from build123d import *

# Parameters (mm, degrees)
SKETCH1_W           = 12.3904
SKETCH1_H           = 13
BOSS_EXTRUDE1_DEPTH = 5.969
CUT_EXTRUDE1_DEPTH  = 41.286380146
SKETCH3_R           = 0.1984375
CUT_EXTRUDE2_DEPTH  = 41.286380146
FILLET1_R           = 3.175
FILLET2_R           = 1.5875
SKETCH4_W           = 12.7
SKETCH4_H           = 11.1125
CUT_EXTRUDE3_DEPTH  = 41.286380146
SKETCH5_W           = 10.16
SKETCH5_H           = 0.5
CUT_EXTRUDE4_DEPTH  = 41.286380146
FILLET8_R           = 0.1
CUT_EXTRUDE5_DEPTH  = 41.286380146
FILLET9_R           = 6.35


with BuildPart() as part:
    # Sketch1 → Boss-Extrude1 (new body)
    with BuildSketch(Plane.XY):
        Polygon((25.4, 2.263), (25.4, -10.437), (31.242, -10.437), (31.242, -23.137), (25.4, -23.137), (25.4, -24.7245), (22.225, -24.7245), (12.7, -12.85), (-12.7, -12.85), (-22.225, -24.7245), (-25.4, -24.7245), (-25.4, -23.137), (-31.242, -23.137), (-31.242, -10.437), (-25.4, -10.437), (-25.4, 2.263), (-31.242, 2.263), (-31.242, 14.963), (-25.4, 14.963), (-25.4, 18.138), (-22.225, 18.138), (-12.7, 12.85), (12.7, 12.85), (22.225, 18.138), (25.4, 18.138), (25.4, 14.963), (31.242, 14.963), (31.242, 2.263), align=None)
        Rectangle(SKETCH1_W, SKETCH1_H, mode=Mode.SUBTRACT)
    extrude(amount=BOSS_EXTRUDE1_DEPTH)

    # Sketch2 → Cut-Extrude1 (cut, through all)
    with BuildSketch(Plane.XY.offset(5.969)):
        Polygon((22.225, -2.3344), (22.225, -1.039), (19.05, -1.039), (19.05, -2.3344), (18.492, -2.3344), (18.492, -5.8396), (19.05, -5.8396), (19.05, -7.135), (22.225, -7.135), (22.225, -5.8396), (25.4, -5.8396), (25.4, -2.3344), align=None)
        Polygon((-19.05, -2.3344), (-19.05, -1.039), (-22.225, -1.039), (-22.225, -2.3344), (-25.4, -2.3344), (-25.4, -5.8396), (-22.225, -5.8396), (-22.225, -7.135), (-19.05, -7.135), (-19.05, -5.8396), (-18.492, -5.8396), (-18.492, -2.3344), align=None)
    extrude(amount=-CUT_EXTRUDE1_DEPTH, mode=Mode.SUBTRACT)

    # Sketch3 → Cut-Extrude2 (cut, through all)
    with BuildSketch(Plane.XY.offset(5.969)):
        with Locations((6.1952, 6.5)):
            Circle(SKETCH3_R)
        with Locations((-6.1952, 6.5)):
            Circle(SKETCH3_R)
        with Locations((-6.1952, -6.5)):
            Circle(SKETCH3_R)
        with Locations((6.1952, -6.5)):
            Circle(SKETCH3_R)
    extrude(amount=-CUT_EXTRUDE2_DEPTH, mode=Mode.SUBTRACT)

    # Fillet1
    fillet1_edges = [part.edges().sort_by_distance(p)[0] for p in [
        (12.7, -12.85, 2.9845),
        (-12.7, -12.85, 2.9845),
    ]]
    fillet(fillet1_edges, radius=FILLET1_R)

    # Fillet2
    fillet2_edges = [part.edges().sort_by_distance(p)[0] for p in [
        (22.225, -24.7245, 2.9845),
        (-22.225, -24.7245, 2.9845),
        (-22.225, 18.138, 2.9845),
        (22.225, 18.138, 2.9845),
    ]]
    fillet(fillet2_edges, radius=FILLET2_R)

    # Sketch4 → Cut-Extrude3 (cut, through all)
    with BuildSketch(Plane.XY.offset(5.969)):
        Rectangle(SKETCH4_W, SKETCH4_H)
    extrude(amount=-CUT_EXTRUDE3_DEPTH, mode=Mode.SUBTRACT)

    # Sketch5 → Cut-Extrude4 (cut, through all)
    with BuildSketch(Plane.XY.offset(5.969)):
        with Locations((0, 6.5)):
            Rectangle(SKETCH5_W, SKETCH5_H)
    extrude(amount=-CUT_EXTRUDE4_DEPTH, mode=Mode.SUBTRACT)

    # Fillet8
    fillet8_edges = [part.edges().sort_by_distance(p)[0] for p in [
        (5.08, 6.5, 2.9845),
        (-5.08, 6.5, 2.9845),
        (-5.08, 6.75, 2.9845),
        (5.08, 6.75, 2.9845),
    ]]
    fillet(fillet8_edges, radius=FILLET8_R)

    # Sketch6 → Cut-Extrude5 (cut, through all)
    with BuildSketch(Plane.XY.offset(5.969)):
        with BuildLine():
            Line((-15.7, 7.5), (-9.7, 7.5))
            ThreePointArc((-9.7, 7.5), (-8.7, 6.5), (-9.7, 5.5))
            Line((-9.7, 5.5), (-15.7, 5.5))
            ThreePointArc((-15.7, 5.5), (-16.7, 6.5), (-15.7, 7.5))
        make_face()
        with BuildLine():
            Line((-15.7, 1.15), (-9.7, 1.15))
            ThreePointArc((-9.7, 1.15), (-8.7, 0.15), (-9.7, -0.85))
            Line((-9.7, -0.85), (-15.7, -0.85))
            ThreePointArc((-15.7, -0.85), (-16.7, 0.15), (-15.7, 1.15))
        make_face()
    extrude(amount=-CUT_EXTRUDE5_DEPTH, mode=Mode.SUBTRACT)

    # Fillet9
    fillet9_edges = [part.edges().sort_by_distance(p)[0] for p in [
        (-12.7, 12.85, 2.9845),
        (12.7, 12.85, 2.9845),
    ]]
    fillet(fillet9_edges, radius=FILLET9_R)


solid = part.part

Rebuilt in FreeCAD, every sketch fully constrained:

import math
import FreeCAD as App
import Part
import Sketcher

V = App.Vector
Q = App.Units.Quantity


def edges_at(feature, points):
    """Names of the edges that pass closest to the given points."""
    edges = feature.Shape.Edges
    near = lambda p: min(range(len(edges)), key=lambda i: edges[i].distToShape(Part.Vertex(*p))[0])
    return sorted({f"Edge{near(p) + 1}" for p in points})


def add_polygon(sketch, points):
    """Adds a closed chain of lines whose ends are joined by coincident constraints."""
    first, n = sketch.GeometryCount, len(points)
    for a, b in zip(points, points[1:] + points[:1]):
        sketch.addGeometry(Part.LineSegment(App.Vector(*a, 0), App.Vector(*b, 0)), False)
    for i in range(n):
        sketch.addConstraint(Sketcher.Constraint("Coincident", first + i, 2, first + (i + 1) % n, 1))

doc = App.newDocument("Part")
body = doc.addObject("PartDesign::Body", "Body")

sketch1 = body.newObject("Sketcher::SketchObject", "Sketch")
sketch1.AttachmentSupport = (doc.getObject("XY_Plane"), [""])
sketch1.MapMode = "FlatFace"
add_polygon(sketch1, [(25.4, -10.4), (25.4, 2.3), (31.2, 2.3), (31.2, 15), (25.4, 15), (25.4, 18.1), (22.2, 18.1), (12.7, 12.8), (-12.7, 12.8), (-22.2, 18.1), (-25.4, 18.1), (-25.4, 15), (-31.2, 15), (-31.2, 2.3), (-25.4, 2.3), (-25.4, -10.4), (-31.2, -10.4), (-31.2, -23.1), (-25.4, -23.1), (-25.4, -24.7), (-22.2, -24.7), (-12.7, -12.8), (12.7, -12.8), (22.2, -24.7), (25.4, -24.7), (25.4, -23.1), (31.2, -23.1), (31.2, -10.4)])
add_polygon(sketch1, [(-6.2, -6.5), (-6.2, 6.5), (6.2, 6.5), (6.2, -6.5)])
sketch1.addConstraint([
    Sketcher.Constraint("Vertical", 0),
    Sketcher.Constraint("Horizontal", 1),
    Sketcher.Constraint("Vertical", 2),
    Sketcher.Constraint("Horizontal", 3),
    Sketcher.Constraint("Vertical", 4),
    Sketcher.Constraint("Horizontal", 5),
    Sketcher.Constraint("Horizontal", 7),
    Sketcher.Constraint("Horizontal", 9),
    Sketcher.Constraint("Vertical", 10),
    Sketcher.Constraint("Horizontal", 11),
    Sketcher.Constraint("Vertical", 12),
    Sketcher.Constraint("Horizontal", 13),
    Sketcher.Constraint("Vertical", 14),
    Sketcher.Constraint("Horizontal", 15),
    Sketcher.Constraint("Vertical", 16),
    Sketcher.Constraint("Horizontal", 17),
    Sketcher.Constraint("Vertical", 18),
    Sketcher.Constraint("Horizontal", 19),
    Sketcher.Constraint("Horizontal", 21),
    Sketcher.Constraint("Horizontal", 23),
    Sketcher.Constraint("Vertical", 24),
    Sketcher.Constraint("Horizontal", 25),
    Sketcher.Constraint("Vertical", 26),
    Sketcher.Constraint("Horizontal", 27),
    Sketcher.Constraint("Vertical", 28),
    Sketcher.Constraint("Horizontal", 29),
    Sketcher.Constraint("Vertical", 30),
    Sketcher.Constraint("Horizontal", 31),
    Sketcher.Constraint("Symmetric", 6, 2, 20, 2, -1, 1),
    Sketcher.Constraint("Symmetric", 28, 2, 30, 2, -1, 1),
    Sketcher.Constraint("Symmetric", 5, 2, 8, 2, -2),
    Sketcher.Constraint("Symmetric", 3, 2, 10, 2, -2),
    Sketcher.Constraint("Symmetric", 1, 2, 12, 2, -2),
    Sketcher.Constraint("Symmetric", 19, 2, 22, 2, -2),
    Sketcher.Constraint("Symmetric", 17, 2, 24, 2, -2),
    Sketcher.Constraint("Symmetric", 15, 2, 26, 2, -2),
    Sketcher.Constraint("Vertical", 0, 2, 3, 2),
    Sketcher.Constraint("Vertical", 10, 2, 13, 2),
    Sketcher.Constraint("Vertical", 12, 2, 15, 2),
    Sketcher.Constraint("Vertical", 14, 2, 17, 2),
    Sketcher.Constraint("Vertical", 8, 2, 19, 2),
    Sketcher.Constraint("Vertical", 7, 2, 20, 2),
    Sketcher.Constraint("Vertical", 6, 2, 21, 2),
    Sketcher.Constraint("Equal", 0, 2),
    Sketcher.Constraint("Equal", 23, 4),
    Sketcher.Constraint("Equal", 14, 16),
    Sketcher.Constraint("DistanceX", 7, 2, 7, 1, Q("1 in")),
    Sketcher.Constraint("DistanceY", 0, 1, 0, 2, Q("0.5 in")),
    Sketcher.Constraint("DistanceX", -1, 1, 0, 2, Q("1 in")),
    Sketcher.Constraint("DistanceX", 1, 1, 1, 2, Q("0.23 in")),
    Sketcher.Constraint("DistanceX", 5, 2, 5, 1, Q("0.125 in")),
    Sketcher.Constraint("DistanceY", 18, 2, 18, 1, Q("0.0625 in")),
    Sketcher.Constraint("DistanceY", 28, 2, 7, 2, Q("0.25 in")),
    Sketcher.Constraint("DistanceY", 20, 2, 14, 2, Q("0.095 in")),
    Sketcher.Constraint("DistanceX", 29, 1, 29, 2, 12.3904),
    Sketcher.Constraint("DistanceY", 28, 1, 28, 2, 13.0),
])
pad1 = body.newObject("PartDesign::Pad", "Pad")
pad1.Profile = sketch1
pad1.Length = Q("0.235 in")

sketch2 = body.newObject("Sketcher::SketchObject", "Sketch001")
sketch2.AttachmentSupport = (doc.getObject("XY_Plane"), [""])
sketch2.MapMode = "FlatFace"
sketch2.AttachmentOffset = App.Placement(V(0, 0, 0.235 * 25.4), App.Rotation())
add_polygon(sketch2, [(22.2, -2.3), (22.2, -1), (19.1, -1), (19.1, -2.3), (18.5, -2.3), (18.5, -5.8), (19.1, -5.8), (19.1, -7.1), (22.2, -7.1), (22.2, -5.8), (25.4, -5.8), (25.4, -2.3)])
add_polygon(sketch2, [(-19.1, -2.3), (-19.1, -1), (-22.2, -1), (-22.2, -2.3), (-25.4, -2.3), (-25.4, -5.8), (-22.2, -5.8), (-22.2, -7.1), (-19.1, -7.1), (-19.1, -5.8), (-18.5, -5.8), (-18.5, -2.3)])
sketch2.addConstraint([
    Sketcher.Constraint("Vertical", 0),
    Sketcher.Constraint("Horizontal", 1),
    Sketcher.Constraint("Vertical", 2),
    Sketcher.Constraint("Horizontal", 3),
    Sketcher.Constraint("Vertical", 4),
    Sketcher.Constraint("Horizontal", 5),
    Sketcher.Constraint("Vertical", 6),
    Sketcher.Constraint("Horizontal", 7),
    Sketcher.Constraint("Vertical", 8),
    Sketcher.Constraint("Horizontal", 9),
    Sketcher.Constraint("Vertical", 10),
    Sketcher.Constraint("Horizontal", 11),
    Sketcher.Constraint("Vertical", 12),
    Sketcher.Constraint("Horizontal", 13),
    Sketcher.Constraint("Vertical", 14),
    Sketcher.Constraint("Horizontal", 15),
    Sketcher.Constraint("Vertical", 16),
    Sketcher.Constraint("Horizontal", 17),
    Sketcher.Constraint("Vertical", 18),
    Sketcher.Constraint("Horizontal", 19),
    Sketcher.Constraint("Vertical", 20),
    Sketcher.Constraint("Horizontal", 21),
    Sketcher.Constraint("Vertical", 22),
    Sketcher.Constraint("Horizontal", 23),
    Sketcher.Constraint("Symmetric", 1, 2, 12, 2, -2),
    Sketcher.Constraint("Symmetric", 11, 2, 14, 2, -2),
    Sketcher.Constraint("Symmetric", 9, 2, 16, 2, -2),
    Sketcher.Constraint("Symmetric", 7, 2, 18, 2, -2),
    Sketcher.Constraint("Symmetric", 5, 2, 20, 2, -2),
    Sketcher.Constraint("Symmetric", 3, 2, 22, 2, -2),
    Sketcher.Constraint("Horizontal", 5, 2, 8, 2),
    Sketcher.Constraint("Horizontal", 3, 2, 10, 2),
    Sketcher.Constraint("Vertical", 2, 2, 5, 2),
    Sketcher.Constraint("Vertical", 0, 2, 7, 2),
    Sketcher.Constraint("Equal", 7, 9),
    Sketcher.Constraint("Equal", 2, 6),
    Sketcher.Constraint("DistanceX", -1, 1, 9, 2, Q("1 in")),
    Sketcher.Constraint("DistanceX", 12, 2, 1, 2, Q("1.5 in")),
    Sketcher.Constraint("DistanceY", 0, 1, 0, 2, Q("0.051 in")),
    Sketcher.Constraint("DistanceY", 4, 2, 4, 1, Q("0.138 in")),
    Sketcher.Constraint("DistanceX", 3, 2, 3, 1, 0.558),
    Sketcher.Constraint("DistanceY", 0, 2, -1, 1, 1.039),
])
pocket1 = body.newObject("PartDesign::Pocket", "Pocket")
pocket1.Profile = sketch2
pocket1.Type = "ThroughAll"

sketch3 = body.newObject("Sketcher::SketchObject", "Sketch002")
sketch3.AttachmentSupport = (doc.getObject("XY_Plane"), [""])
sketch3.MapMode = "FlatFace"
sketch3.AttachmentOffset = App.Placement(V(0, 0, 0.235 * 25.4), App.Rotation())
sketch3.addGeometry([
    Part.Circle(V(6.2, 6.5, 0), V(0, 0, 1), 0.2),
    Part.Circle(V(-6.2, 6.5, 0), V(0, 0, 1), 0.2),
    Part.Circle(V(-6.2, -6.5, 0), V(0, 0, 1), 0.2),
    Part.Circle(V(6.2, -6.5, 0), V(0, 0, 1), 0.2),
], False)
sketch3.addConstraint([
    Sketcher.Constraint("Equal", 0, 1),
    Sketcher.Constraint("Equal", 1, 2),
    Sketcher.Constraint("Equal", 2, 3),
    Sketcher.Constraint("Symmetric", 0, 3, 2, 3, -1, 1),
    Sketcher.Constraint("Symmetric", 1, 3, 3, 3, -1, 1),
    Sketcher.Constraint("Symmetric", 0, 3, 1, 3, -2),
    Sketcher.Constraint("Diameter", 0, Q("0.015625 in")),
    Sketcher.Constraint("DistanceX", -1, 1, 0, 3, 6.1952),
    Sketcher.Constraint("DistanceY", -1, 1, 0, 3, 6.5),
])
pocket2 = body.newObject("PartDesign::Pocket", "Pocket001")
pocket2.Profile = sketch3
pocket2.Type = "ThroughAll"
doc.recompute()

fillet = body.newObject("PartDesign::Fillet", "Fillet")
fillet.Base = (pocket2, edges_at(pocket2, [(12.7, -12.85, 2.985), (-12.7, -12.85, 2.985)]))
fillet.Radius = Q("0.125 in")
doc.recompute()

fillet2 = body.newObject("PartDesign::Fillet", "Fillet001")
fillet2.Base = (fillet, edges_at(fillet, [
    (22.225, -24.724, 2.985),
    (-22.225, -24.724, 2.985),
    (-22.225, 18.138, 2.985),
    (22.225, 18.138, 2.985),
]))
fillet2.Radius = Q("0.0625 in")

sketch4 = body.newObject("Sketcher::SketchObject", "Sketch003")
sketch4.AttachmentSupport = (doc.getObject("XY_Plane"), [""])
sketch4.MapMode = "FlatFace"
sketch4.AttachmentOffset = App.Placement(V(0, 0, 0.235 * 25.4), App.Rotation())
add_polygon(sketch4, [(-6, 6), (-6, -6), (6, -6), (6, 6)])
sketch4.addConstraint([
    Sketcher.Constraint("Vertical", 0),
    Sketcher.Constraint("Horizontal", 1),
    Sketcher.Constraint("Vertical", 2),
    Sketcher.Constraint("Horizontal", 3),
    Sketcher.Constraint("Symmetric", 0, 2, 2, 2, -1, 1),
    Sketcher.Constraint("DistanceX", 1, 1, 1, 2, Q("0.5 in")),
    Sketcher.Constraint("DistanceY", 0, 2, 0, 1, Q("0.4375 in")),
])
pocket3 = body.newObject("PartDesign::Pocket", "Pocket002")
pocket3.Profile = sketch4
pocket3.Type = "ThroughAll"

sketch5 = body.newObject("Sketcher::SketchObject", "Sketch004")
sketch5.AttachmentSupport = (doc.getObject("XY_Plane"), [""])
sketch5.MapMode = "FlatFace"
sketch5.AttachmentOffset = App.Placement(V(0, 0, 0.235 * 25.4), App.Rotation())
add_polygon(sketch5, [(-5.1, 6.8), (-5.1, 6.2), (5.1, 6.2), (5.1, 6.8)])
sketch5.addConstraint([
    Sketcher.Constraint("Vertical", 0),
    Sketcher.Constraint("Horizontal", 1),
    Sketcher.Constraint("Vertical", 2),
    Sketcher.Constraint("Horizontal", 3),
    Sketcher.Constraint("DistanceX", 1, 1, 1, 2, Q("0.4 in")),
    Sketcher.Constraint("DistanceX", 0, 2, -1, 1, Q("0.2 in")),
    Sketcher.Constraint("DistanceY", 0, 2, 0, 1, 0.5),
    Sketcher.Constraint("DistanceY", -1, 1, 0, 2, 6.25),
])
pocket4 = body.newObject("PartDesign::Pocket", "Pocket003")
pocket4.Profile = sketch5
pocket4.Type = "ThroughAll"
doc.recompute()

fillet3 = body.newObject("PartDesign::Fillet", "Fillet002")
fillet3.Base = (pocket4, edges_at(pocket4, [
    (5.08, 6.5, 2.985),
    (-5.08, 6.5, 2.985),
    (-5.08, 6.75, 2.985),
    (5.08, 6.75, 2.985),
]))
fillet3.Radius = 0.1

sketch6 = body.newObject("Sketcher::SketchObject", "Sketch005")
sketch6.AttachmentSupport = (doc.getObject("XY_Plane"), [""])
sketch6.MapMode = "FlatFace"
sketch6.AttachmentOffset = App.Placement(V(0, 0, 0.235 * 25.4), App.Rotation())
sketch6.addGeometry([
    Part.LineSegment(V(-9.7, 7.5, 0), V(-15.7, 7.5, 0)),
    Part.ArcOfCircle(Part.Circle(V(-15.7, 6.5, 0), V(0, 0, 1), 1), math.radians(90), math.radians(270)),
    Part.LineSegment(V(-15.7, 5.5, 0), V(-9.7, 5.5, 0)),
    Part.ArcOfCircle(Part.Circle(V(-9.7, 6.5, 0), V(0, 0, 1), 1), math.radians(-90), math.radians(90)),
    Part.LineSegment(V(-9.7, 1.1, 0), V(-15.7, 1.1, 0)),
    Part.ArcOfCircle(Part.Circle(V(-15.7, 0.1, 0), V(0, 0, 1), 1), math.radians(90), math.radians(270)),
    Part.LineSegment(V(-15.7, -0.8, 0), V(-9.7, -0.8, 0)),
    Part.ArcOfCircle(Part.Circle(V(-9.7, 0.1, 0), V(0, 0, 1), 1), math.radians(-90), math.radians(90)),
], False)
sketch6.addConstraint([
    Sketcher.Constraint("Tangent", 0, 2, 1, 1),
    Sketcher.Constraint("Tangent", 1, 2, 2, 1),
    Sketcher.Constraint("Tangent", 2, 2, 3, 1),
    Sketcher.Constraint("Tangent", 3, 2, 0, 1),
    Sketcher.Constraint("Tangent", 4, 2, 5, 1),
    Sketcher.Constraint("Tangent", 5, 2, 6, 1),
    Sketcher.Constraint("Tangent", 6, 2, 7, 1),
    Sketcher.Constraint("Tangent", 7, 2, 4, 1),
    Sketcher.Constraint("Horizontal", 0),
    Sketcher.Constraint("Horizontal", 2),
    Sketcher.Constraint("Horizontal", 4),
    Sketcher.Constraint("Horizontal", 6),
    Sketcher.Constraint("Equal", 3, 5),
    Sketcher.Constraint("Vertical", 1, 3, 5, 3),
    Sketcher.Constraint("Vertical", 3, 3, 7, 3),
    Sketcher.Constraint("Radius", 1, 1.0),
    Sketcher.Constraint("DistanceY", 5, 3, 1, 3, Q("0.25 in")),
    Sketcher.Constraint("DistanceX", 0, 2, 0, 1, 6.0),
    Sketcher.Constraint("DistanceX", 1, 3, -1, 1, 15.7),
    Sketcher.Constraint("DistanceY", -1, 1, 1, 3, 6.5),
])
pocket5 = body.newObject("PartDesign::Pocket", "Pocket004")
pocket5.Profile = sketch6
pocket5.Type = "ThroughAll"
doc.recompute()

fillet4 = body.newObject("PartDesign::Fillet", "Fillet003")
fillet4.Base = (pocket5, edges_at(pocket5, [(-12.7, 12.85, 2.985), (12.7, 12.85, 2.985)]))
fillet4.Radius = Q("0.25 in")

doc.recompute()
